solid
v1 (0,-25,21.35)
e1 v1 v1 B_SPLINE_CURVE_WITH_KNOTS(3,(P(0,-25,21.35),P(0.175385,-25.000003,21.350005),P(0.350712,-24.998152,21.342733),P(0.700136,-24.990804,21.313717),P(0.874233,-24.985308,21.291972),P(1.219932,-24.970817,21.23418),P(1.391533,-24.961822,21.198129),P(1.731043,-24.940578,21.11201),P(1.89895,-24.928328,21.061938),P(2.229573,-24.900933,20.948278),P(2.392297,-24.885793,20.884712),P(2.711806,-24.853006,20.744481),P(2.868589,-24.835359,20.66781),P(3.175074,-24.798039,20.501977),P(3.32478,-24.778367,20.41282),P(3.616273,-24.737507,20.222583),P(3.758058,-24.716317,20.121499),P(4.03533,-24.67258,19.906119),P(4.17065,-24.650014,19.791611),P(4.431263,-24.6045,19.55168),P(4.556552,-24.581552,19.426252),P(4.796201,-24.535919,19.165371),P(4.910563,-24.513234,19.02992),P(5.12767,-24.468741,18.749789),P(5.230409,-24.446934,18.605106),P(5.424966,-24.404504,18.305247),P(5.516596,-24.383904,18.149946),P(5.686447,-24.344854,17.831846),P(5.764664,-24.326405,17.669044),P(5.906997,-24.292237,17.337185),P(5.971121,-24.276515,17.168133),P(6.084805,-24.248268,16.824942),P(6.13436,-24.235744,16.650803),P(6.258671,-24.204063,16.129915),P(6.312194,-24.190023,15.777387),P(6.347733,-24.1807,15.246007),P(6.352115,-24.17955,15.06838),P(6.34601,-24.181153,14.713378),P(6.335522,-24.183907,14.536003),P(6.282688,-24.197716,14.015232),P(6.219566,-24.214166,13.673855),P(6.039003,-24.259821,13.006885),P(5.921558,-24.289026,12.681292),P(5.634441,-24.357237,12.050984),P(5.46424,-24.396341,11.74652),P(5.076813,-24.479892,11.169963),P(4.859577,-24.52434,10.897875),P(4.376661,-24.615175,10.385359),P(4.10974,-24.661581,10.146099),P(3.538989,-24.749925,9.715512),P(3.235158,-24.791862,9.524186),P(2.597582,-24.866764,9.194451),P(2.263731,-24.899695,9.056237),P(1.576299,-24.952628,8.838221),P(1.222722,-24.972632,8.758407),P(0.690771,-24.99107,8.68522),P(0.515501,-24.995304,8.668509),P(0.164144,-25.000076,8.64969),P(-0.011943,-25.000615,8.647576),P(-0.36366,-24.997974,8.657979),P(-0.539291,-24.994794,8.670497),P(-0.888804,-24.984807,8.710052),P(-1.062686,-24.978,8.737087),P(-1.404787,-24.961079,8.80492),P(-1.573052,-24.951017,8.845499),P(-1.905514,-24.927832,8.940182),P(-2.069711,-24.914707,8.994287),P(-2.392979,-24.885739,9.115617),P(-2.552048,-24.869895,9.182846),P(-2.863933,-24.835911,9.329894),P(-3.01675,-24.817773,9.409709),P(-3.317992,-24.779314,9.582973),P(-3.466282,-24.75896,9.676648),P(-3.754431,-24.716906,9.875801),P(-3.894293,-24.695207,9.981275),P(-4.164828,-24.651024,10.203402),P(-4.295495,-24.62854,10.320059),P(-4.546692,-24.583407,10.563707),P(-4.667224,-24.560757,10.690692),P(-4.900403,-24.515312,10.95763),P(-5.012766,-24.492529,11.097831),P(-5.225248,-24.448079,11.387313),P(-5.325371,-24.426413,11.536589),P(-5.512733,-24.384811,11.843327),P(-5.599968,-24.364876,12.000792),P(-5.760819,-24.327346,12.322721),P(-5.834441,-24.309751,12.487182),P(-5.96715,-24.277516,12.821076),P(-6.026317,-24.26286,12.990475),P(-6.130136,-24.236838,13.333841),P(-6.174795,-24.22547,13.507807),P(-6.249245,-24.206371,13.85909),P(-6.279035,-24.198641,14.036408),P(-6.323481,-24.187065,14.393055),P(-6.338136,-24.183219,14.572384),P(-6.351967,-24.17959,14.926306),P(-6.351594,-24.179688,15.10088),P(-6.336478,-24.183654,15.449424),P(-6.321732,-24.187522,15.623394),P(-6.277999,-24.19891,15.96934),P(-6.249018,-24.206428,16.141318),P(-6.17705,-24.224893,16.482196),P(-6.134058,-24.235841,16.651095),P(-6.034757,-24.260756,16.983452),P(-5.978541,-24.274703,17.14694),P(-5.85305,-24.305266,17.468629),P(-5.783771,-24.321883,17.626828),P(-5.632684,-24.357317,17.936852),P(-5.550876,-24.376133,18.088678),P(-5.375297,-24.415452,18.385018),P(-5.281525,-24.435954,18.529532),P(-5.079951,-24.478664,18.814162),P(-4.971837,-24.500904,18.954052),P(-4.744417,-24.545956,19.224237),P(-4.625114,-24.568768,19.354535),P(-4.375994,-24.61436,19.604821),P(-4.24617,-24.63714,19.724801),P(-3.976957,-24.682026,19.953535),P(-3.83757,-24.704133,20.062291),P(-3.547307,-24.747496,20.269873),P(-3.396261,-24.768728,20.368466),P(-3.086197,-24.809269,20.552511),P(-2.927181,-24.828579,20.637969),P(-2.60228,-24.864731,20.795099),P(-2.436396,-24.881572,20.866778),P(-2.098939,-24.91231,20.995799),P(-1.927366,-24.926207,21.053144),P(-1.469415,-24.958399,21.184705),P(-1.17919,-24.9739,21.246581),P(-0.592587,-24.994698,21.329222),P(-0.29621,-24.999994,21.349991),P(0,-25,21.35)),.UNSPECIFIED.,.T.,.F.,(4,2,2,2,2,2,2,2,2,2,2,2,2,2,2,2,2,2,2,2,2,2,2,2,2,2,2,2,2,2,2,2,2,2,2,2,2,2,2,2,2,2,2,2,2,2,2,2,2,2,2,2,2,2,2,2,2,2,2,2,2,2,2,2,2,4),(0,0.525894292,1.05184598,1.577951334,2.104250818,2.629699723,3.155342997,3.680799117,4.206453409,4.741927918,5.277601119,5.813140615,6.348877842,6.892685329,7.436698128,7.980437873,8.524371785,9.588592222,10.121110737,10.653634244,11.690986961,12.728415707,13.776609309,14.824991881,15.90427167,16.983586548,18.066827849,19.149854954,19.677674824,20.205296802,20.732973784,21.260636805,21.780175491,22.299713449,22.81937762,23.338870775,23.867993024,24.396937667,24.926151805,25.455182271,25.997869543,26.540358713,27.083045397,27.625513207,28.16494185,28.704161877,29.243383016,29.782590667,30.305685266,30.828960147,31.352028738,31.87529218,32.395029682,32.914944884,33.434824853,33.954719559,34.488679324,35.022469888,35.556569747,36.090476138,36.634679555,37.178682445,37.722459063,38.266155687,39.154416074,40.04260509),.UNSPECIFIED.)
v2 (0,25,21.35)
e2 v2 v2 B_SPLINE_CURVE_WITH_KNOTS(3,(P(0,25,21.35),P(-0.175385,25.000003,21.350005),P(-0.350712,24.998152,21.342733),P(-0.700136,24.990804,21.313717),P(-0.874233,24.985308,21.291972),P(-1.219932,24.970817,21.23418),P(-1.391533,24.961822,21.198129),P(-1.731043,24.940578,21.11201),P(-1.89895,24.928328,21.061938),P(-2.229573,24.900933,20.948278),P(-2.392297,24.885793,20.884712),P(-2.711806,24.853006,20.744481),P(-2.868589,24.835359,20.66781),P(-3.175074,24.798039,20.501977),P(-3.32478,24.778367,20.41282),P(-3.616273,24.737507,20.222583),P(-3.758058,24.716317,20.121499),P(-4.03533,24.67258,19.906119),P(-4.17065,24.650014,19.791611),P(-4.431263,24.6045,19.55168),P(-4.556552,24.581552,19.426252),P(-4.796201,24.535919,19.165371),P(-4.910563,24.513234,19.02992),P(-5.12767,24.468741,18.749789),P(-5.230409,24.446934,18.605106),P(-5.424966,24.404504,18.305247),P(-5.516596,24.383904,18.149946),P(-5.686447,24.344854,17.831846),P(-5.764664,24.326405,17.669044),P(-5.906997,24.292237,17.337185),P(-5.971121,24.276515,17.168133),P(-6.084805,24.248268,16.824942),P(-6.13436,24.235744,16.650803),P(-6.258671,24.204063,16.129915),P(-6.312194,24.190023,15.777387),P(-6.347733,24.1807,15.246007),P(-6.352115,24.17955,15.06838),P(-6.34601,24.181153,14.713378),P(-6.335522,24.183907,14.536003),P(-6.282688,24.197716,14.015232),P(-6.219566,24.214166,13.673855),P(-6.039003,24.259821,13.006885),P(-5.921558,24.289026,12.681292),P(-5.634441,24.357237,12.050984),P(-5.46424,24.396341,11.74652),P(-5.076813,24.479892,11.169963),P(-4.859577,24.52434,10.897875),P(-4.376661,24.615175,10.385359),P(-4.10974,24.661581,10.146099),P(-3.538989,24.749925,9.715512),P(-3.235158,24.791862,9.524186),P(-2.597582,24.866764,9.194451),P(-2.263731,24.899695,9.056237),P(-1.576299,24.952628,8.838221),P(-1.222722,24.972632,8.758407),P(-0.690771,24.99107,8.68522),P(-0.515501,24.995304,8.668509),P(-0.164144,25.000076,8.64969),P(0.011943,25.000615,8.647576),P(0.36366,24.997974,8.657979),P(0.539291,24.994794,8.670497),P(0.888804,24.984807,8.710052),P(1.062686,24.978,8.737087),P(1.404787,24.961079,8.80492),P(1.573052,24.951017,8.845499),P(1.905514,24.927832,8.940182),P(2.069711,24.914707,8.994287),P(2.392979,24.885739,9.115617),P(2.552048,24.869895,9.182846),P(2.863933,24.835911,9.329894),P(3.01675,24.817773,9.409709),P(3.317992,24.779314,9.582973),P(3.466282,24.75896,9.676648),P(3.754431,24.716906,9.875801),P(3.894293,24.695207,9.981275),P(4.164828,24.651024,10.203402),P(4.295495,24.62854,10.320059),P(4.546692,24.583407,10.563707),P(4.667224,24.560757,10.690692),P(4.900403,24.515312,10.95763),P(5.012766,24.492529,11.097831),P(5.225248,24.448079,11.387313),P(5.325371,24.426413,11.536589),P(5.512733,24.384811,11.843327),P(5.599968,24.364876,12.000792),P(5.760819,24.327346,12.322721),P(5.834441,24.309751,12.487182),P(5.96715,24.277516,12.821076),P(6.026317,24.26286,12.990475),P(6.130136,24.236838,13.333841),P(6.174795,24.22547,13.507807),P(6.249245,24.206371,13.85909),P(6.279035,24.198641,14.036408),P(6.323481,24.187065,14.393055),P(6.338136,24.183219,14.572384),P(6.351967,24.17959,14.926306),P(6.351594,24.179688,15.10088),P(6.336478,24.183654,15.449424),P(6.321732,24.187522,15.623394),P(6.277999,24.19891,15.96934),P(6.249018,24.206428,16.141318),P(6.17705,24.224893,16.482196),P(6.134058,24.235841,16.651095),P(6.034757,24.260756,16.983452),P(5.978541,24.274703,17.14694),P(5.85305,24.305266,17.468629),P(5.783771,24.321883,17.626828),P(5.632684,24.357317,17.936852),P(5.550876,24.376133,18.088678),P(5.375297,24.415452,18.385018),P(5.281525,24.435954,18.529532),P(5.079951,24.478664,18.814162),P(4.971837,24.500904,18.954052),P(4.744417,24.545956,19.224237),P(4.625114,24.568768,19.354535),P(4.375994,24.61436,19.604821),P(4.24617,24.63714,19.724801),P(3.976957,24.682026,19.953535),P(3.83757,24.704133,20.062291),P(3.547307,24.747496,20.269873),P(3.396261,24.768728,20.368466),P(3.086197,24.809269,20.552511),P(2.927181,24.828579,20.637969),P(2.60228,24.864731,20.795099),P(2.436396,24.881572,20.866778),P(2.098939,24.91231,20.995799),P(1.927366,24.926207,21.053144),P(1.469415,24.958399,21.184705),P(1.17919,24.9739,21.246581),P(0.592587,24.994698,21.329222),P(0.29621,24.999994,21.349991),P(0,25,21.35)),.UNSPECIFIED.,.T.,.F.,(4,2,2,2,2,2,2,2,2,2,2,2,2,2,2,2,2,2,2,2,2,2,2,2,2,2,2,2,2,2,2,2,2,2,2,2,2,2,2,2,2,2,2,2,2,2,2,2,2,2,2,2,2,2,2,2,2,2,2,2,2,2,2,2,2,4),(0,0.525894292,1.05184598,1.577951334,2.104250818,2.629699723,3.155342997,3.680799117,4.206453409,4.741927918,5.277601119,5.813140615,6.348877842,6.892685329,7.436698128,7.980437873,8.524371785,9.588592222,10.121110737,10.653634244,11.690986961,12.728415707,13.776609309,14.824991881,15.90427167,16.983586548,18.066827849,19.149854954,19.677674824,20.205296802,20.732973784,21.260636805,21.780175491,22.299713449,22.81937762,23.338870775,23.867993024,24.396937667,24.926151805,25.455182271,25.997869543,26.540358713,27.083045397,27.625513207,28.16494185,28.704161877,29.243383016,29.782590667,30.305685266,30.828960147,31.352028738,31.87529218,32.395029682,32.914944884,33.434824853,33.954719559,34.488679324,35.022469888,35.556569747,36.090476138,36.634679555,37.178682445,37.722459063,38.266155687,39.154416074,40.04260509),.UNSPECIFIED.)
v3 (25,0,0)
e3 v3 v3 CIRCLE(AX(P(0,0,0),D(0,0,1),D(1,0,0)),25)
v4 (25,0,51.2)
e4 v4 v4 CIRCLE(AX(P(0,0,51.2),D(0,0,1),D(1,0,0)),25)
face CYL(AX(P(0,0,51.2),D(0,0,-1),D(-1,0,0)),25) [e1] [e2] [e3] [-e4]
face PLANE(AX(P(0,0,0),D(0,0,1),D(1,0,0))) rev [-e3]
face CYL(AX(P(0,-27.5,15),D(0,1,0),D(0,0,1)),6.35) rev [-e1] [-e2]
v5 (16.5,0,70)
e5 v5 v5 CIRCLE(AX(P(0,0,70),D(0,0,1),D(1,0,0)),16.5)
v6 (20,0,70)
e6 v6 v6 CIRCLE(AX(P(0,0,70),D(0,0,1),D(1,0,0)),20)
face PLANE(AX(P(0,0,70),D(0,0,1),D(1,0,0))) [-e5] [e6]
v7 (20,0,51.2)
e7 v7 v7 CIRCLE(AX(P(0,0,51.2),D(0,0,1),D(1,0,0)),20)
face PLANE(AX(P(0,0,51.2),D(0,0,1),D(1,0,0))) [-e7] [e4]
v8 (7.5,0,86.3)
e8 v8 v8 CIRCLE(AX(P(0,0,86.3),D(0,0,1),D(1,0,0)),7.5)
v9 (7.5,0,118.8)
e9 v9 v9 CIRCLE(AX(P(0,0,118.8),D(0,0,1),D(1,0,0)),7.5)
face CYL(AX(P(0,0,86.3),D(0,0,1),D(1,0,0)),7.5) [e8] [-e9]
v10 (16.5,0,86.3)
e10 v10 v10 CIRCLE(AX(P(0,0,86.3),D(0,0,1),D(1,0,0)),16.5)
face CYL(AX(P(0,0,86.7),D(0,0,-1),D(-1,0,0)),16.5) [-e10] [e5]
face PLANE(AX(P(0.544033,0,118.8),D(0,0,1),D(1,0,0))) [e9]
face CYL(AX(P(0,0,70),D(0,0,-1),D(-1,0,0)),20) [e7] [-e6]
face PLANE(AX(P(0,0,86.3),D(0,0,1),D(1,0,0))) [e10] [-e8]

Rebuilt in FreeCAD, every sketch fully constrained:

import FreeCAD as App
import Part
import Sketcher

V = App.Vector
Q = App.Units.Quantity


def edges_at(feature, points):
    """Names of the edges that pass closest to the given points."""
    edges = feature.Shape.Edges
    near = lambda p: min(range(len(edges)), key=lambda i: edges[i].distToShape(Part.Vertex(*p))[0])
    return sorted({f"Edge{near(p) + 1}" for p in points})

doc = App.newDocument("Part")
body = doc.addObject("PartDesign::Body", "Body")

# Sketch on XY plane
sketch1 = doc.addObject("Sketcher::SketchObject", "Sketch")
body.addObject(sketch1)
sketch1.AttachmentSupport = (doc.XY_Plane, [""])
sketch1.MapMode = "FlatFace"
sketch1.addGeometry(Part.Circle(V(0, 0, 0), V(0, 0, 1), 25), False)
sketch1.addConstraint([
    Sketcher.Constraint("Coincident", 0, 3, -1, 1),
    Sketcher.Constraint("Diameter", 0, Q("50 mm")),
])
pad1 = doc.addObject("PartDesign::Pad", "Pad")
body.addObject(pad1)
pad1.Profile = sketch1
pad1.Length = 51.2

# Sketch on XY plane
sketch2 = doc.addObject("Sketcher::SketchObject", "Sketch001")
body.addObject(sketch2)
sketch2.AttachmentSupport = (doc.XY_Plane, [""])
sketch2.MapMode = "FlatFace"
sketch2.AttachmentOffset = App.Placement(V(0, 0, 51.2), App.Rotation())
sketch2.addGeometry(Part.Circle(V(0, 0, 0), V(0, 0, 1), 20), False)
sketch2.addConstraint([
    Sketcher.Constraint("Coincident", 0, 3, -1, 1),
    Sketcher.Constraint("Diameter", 0, Q("40 mm")),
])
pad2 = doc.addObject("PartDesign::Pad", "Pad001")
body.addObject(pad2)
pad2.Profile = sketch2
pad2.Length = 18.8

# Sketch on XY plane
sketch3 = doc.addObject("Sketcher::SketchObject", "Sketch002")
body.addObject(sketch3)
sketch3.AttachmentSupport = (doc.XY_Plane, [""])
sketch3.MapMode = "FlatFace"
sketch3.AttachmentOffset = App.Placement(V(0, 0, 70), App.Rotation())
sketch3.addGeometry(Part.Circle(V(0, 0, 0), V(0, 0, 1), 16), False)
sketch3.addConstraint([
    Sketcher.Constraint("Coincident", 0, 3, -1, 1),
    Sketcher.Constraint("Diameter", 0, Q("33 mm")),
])
pad3 = doc.addObject("PartDesign::Pad", "Pad002")
body.addObject(pad3)
pad3.Profile = sketch3
pad3.Length = 16.7

# Sketch on XY plane
sketch4 = doc.addObject("Sketcher::SketchObject", "Sketch003")
body.addObject(sketch4)
sketch4.AttachmentSupport = (doc.XY_Plane, [""])
sketch4.MapMode = "FlatFace"
sketch4.AttachmentOffset = App.Placement(V(0, 0, 86.7), App.Rotation())
sketch4.addGeometry(Part.Circle(V(0, 0, 0), V(0, 0, 1), 28), False)
sketch4.addConstraint([
    Sketcher.Constraint("Coincident", 0, 3, -1, 1),
    Sketcher.Constraint("Diameter", 0, Q("55 mm")),
])
pad4 = doc.addObject("PartDesign::Pad", "Pad003")
body.addObject(pad4)
pad4.Profile = sketch4
pad4.Length = 47.1
doc.recompute()

chamfer = doc.addObject("PartDesign::Chamfer", "Chamfer")
body.addObject(chamfer)
chamfer.Base = (pad4, edges_at(pad4, [(-27.5, 0, 86.7)]))
chamfer.ChamferType = "Two distances"
chamfer.Size = 10
chamfer.Size2 = 17.320508

# Sketch on XZ plane
sketch5 = doc.addObject("Sketcher::SketchObject", "Sketch004")
body.addObject(sketch5)
sketch5.AttachmentSupport = (doc.XZ_Plane, [""])
sketch5.MapMode = "FlatFace"
sketch5.addGeometry(Part.Circle(V(0, 15, 0), V(0, 0, 1), 6), False)
sketch5.addConstraint([
    Sketcher.Constraint("PointOnObject", 0, 3, -2),
    Sketcher.Constraint("Diameter", 0, Q("12.7 mm")),
    Sketcher.Constraint("DistanceY", -1, 1, 0, 3, Q("15 mm")),
])
pocket1 = doc.addObject("PartDesign::Pocket", "Pocket")
body.addObject(pocket1)
pocket1.Profile = sketch5
pocket1.Type = "ThroughAll"
pocket1.Midplane = True

# Sketch on XY plane
sketch6 = doc.addObject("Sketcher::SketchObject", "Sketch005")
body.addObject(sketch6)
sketch6.AttachmentSupport = (doc.XY_Plane, [""])
sketch6.MapMode = "FlatFace"
sketch6.AttachmentOffset = App.Placement(V(0, 0, 133.8), App.Rotation())
sketch6.addGeometry(Part.Circle(V(1, 0, 0), V(0, 0, 1), 47), False)
sketch6.addConstraint([
    Sketcher.Constraint("PointOnObject", 0, 3, -1),
    Sketcher.Constraint("Diameter", 0, Q("94.516878 mm")),
    Sketcher.Constraint("DistanceX", -1, 1, 0, 3, Q("0.544033 mm")),
])
pocket2 = doc.addObject("PartDesign::Pocket", "Pocket001")
body.addObject(pocket2)
pocket2.Profile = sketch6
pocket2.Length = 15

# Sketch on XY plane
sketch7 = doc.addObject("Sketcher::SketchObject", "Sketch006")
body.addObject(sketch7)
sketch7.AttachmentSupport = (doc.XY_Plane, [""])
sketch7.MapMode = "FlatFace"
sketch7.AttachmentOffset = App.Placement(V(0, 0, 118.8), App.Rotation())
sketch7.addGeometry([
    Part.Circle(V(0, 0, 0), V(0, 0, 1), 40),
    Part.Circle(V(0, 0, 0), V(0, 0, 1), 8),
], False)
sketch7.addConstraint([
    Sketcher.Constraint("Coincident", 0, 3, -1, 1),
    Sketcher.Constraint("Coincident", 1, 3, -1, 1),
    Sketcher.Constraint("Diameter", 1, Q("15 mm")),
    Sketcher.Constraint("Diameter", 0, Q("79.869454 mm")),
])
pocket3 = doc.addObject("PartDesign::Pocket", "Pocket002")
body.addObject(pocket3)
pocket3.Profile = sketch7
pocket3.Length = 32.5

doc.recompute()
